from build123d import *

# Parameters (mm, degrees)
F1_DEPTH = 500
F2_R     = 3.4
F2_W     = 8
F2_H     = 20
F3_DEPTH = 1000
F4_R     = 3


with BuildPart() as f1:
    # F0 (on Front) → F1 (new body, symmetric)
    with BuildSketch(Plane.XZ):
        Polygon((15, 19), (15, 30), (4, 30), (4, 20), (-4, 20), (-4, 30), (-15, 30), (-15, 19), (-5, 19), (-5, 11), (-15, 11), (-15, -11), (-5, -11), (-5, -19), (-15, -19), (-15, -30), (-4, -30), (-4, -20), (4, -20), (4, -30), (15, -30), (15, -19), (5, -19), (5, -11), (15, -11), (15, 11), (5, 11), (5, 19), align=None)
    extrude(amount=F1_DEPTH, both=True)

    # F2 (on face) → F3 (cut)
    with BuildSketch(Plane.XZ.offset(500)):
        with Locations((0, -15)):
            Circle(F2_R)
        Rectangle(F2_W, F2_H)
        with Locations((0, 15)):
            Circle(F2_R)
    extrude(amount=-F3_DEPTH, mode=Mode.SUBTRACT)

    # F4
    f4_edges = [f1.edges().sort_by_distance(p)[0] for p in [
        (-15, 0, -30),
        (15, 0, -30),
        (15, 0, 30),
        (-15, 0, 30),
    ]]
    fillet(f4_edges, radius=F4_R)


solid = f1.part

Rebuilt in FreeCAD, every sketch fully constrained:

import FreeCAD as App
import Part
import Sketcher
from FreeCAD import Vector
Q = App.Units.Quantity


def edges_at(feature, points):
    """Names of the edges that pass closest to the given points."""
    edges = feature.Shape.Edges
    near = lambda p: min(range(len(edges)), key=lambda i: edges[i].distToShape(Part.Vertex(*p))[0])
    return sorted({f"Edge{near(p) + 1}" for p in points})

doc = App.newDocument("Part")
body = doc.addObject("PartDesign::Body", "Body")

sketch1 = doc.addObject("Sketcher::SketchObject", "Sketch")
body.addObject(sketch1)
sketch1.AttachmentSupport = (doc.XZ_Plane, [""])
sketch1.MapMode = "FlatFace"
sketch1.addGeometry(Part.LineSegment(Vector(15, 19, 0), Vector(15, 30, 0)), False)
sketch1.addGeometry(Part.LineSegment(Vector(15, 30, 0), Vector(4, 30, 0)), False)
sketch1.addGeometry(Part.LineSegment(Vector(4, 30, 0), Vector(4, 20, 0)), False)
sketch1.addGeometry(Part.LineSegment(Vector(4, 20, 0), Vector(-4, 20, 0)), False)
sketch1.addGeometry(Part.LineSegment(Vector(-4, 20, 0), Vector(-4, 30, 0)), False)
sketch1.addGeometry(Part.LineSegment(Vector(-4, 30, 0), Vector(-15, 30, 0)), False)
sketch1.addGeometry(Part.LineSegment(Vector(-15, 30, 0), Vector(-15, 19, 0)), False)
sketch1.addGeometry(Part.LineSegment(Vector(-15, 19, 0), Vector(-5, 19, 0)), False)
sketch1.addGeometry(Part.LineSegment(Vector(-5, 19, 0), Vector(-5, 11, 0)), False)
sketch1.addGeometry(Part.LineSegment(Vector(-5, 11, 0), Vector(-15, 11, 0)), False)
sketch1.addGeometry(Part.LineSegment(Vector(-15, 11, 0), Vector(-15, -11, 0)), False)
sketch1.addGeometry(Part.LineSegment(Vector(-15, -11, 0), Vector(-5, -11, 0)), False)
sketch1.addGeometry(Part.LineSegment(Vector(-5, -11, 0), Vector(-5, -19, 0)), False)
sketch1.addGeometry(Part.LineSegment(Vector(-5, -19, 0), Vector(-15, -19, 0)), False)
sketch1.addGeometry(Part.LineSegment(Vector(-15, -19, 0), Vector(-15, -30, 0)), False)
sketch1.addGeometry(Part.LineSegment(Vector(-15, -30, 0), Vector(-4, -30, 0)), False)
sketch1.addGeometry(Part.LineSegment(Vector(-4, -30, 0), Vector(-4, -20, 0)), False)
sketch1.addGeometry(Part.LineSegment(Vector(-4, -20, 0), Vector(4, -20, 0)), False)
sketch1.addGeometry(Part.LineSegment(Vector(4, -20, 0), Vector(4, -30, 0)), False)
sketch1.addGeometry(Part.LineSegment(Vector(4, -30, 0), Vector(15, -30, 0)), False)
sketch1.addGeometry(Part.LineSegment(Vector(15, -30, 0), Vector(15, -19, 0)), False)
sketch1.addGeometry(Part.LineSegment(Vector(15, -19, 0), Vector(5, -19, 0)), False)
sketch1.addGeometry(Part.LineSegment(Vector(5, -19, 0), Vector(5, -11, 0)), False)
sketch1.addGeometry(Part.LineSegment(Vector(5, -11, 0), Vector(15, -11, 0)), False)
sketch1.addGeometry(Part.LineSegment(Vector(15, -11, 0), Vector(15, 11, 0)), False)
sketch1.addGeometry(Part.LineSegment(Vector(15, 11, 0), Vector(5, 11, 0)), False)
sketch1.addGeometry(Part.LineSegment(Vector(5, 11, 0), Vector(5, 19, 0)), False)
sketch1.addGeometry(Part.LineSegment(Vector(5, 19, 0), Vector(15, 19, 0)), False)
sketch1.addConstraint(Sketcher.Constraint("Coincident", 0, 2, 1, 1))
sketch1.addConstraint(Sketcher.Constraint("Coincident", 1, 2, 2, 1))
sketch1.addConstraint(Sketcher.Constraint("Coincident", 2, 2, 3, 1))
sketch1.addConstraint(Sketcher.Constraint("Coincident", 3, 2, 4, 1))
sketch1.addConstraint(Sketcher.Constraint("Coincident", 4, 2, 5, 1))
sketch1.addConstraint(Sketcher.Constraint("Coincident", 5, 2, 6, 1))
sketch1.addConstraint(Sketcher.Constraint("Coincident", 6, 2, 7, 1))
sketch1.addConstraint(Sketcher.Constraint("Coincident", 7, 2, 8, 1))
sketch1.addConstraint(Sketcher.Constraint("Coincident", 8, 2, 9, 1))
sketch1.addConstraint(Sketcher.Constraint("Coincident", 9, 2, 10, 1))
sketch1.addConstraint(Sketcher.Constraint("Coincident", 10, 2, 11, 1))
sketch1.addConstraint(Sketcher.Constraint("Coincident", 11, 2, 12, 1))
sketch1.addConstraint(Sketcher.Constraint("Coincident", 12, 2, 13, 1))
sketch1.addConstraint(Sketcher.Constraint("Coincident", 13, 2, 14, 1))
sketch1.addConstraint(Sketcher.Constraint("Coincident", 14, 2, 15, 1))
sketch1.addConstraint(Sketcher.Constraint("Coincident", 15, 2, 16, 1))
sketch1.addConstraint(Sketcher.Constraint("Coincident", 16, 2, 17, 1))
sketch1.addConstraint(Sketcher.Constraint("Coincident", 17, 2, 18, 1))
sketch1.addConstraint(Sketcher.Constraint("Coincident", 18, 2, 19, 1))
sketch1.addConstraint(Sketcher.Constraint("Coincident", 19, 2, 20, 1))
sketch1.addConstraint(Sketcher.Constraint("Coincident", 20, 2, 21, 1))
sketch1.addConstraint(Sketcher.Constraint("Coincident", 21, 2, 22, 1))
sketch1.addConstraint(Sketcher.Constraint("Coincident", 22, 2, 23, 1))
sketch1.addConstraint(Sketcher.Constraint("Coincident", 23, 2, 24, 1))
sketch1.addConstraint(Sketcher.Constraint("Coincident", 24, 2, 25, 1))
sketch1.addConstraint(Sketcher.Constraint("Coincident", 25, 2, 26, 1))
sketch1.addConstraint(Sketcher.Constraint("Coincident", 26, 2, 27, 1))
sketch1.addConstraint(Sketcher.Constraint("Coincident", 27, 2, 0, 1))
sketch1.addConstraint(Sketcher.Constraint("Vertical", 0))
sketch1.addConstraint(Sketcher.Constraint("Horizontal", 1))
sketch1.addConstraint(Sketcher.Constraint("Vertical", 2))
sketch1.addConstraint(Sketcher.Constraint("Horizontal", 3))
sketch1.addConstraint(Sketcher.Constraint("Vertical", 4))
sketch1.addConstraint(Sketcher.Constraint("Horizontal", 5))
sketch1.addConstraint(Sketcher.Constraint("Vertical", 6))
sketch1.addConstraint(Sketcher.Constraint("Horizontal", 7))
sketch1.addConstraint(Sketcher.Constraint("Vertical", 8))
sketch1.addConstraint(Sketcher.Constraint("Horizontal", 9))
sketch1.addConstraint(Sketcher.Constraint("Vertical", 10))
sketch1.addConstraint(Sketcher.Constraint("Horizontal", 11))
sketch1.addConstraint(Sketcher.Constraint("Vertical", 12))
sketch1.addConstraint(Sketcher.Constraint("Horizontal", 13))
sketch1.addConstraint(Sketcher.Constraint("Vertical", 14))
sketch1.addConstraint(Sketcher.Constraint("Horizontal", 15))
sketch1.addConstraint(Sketcher.Constraint("Vertical", 16))
sketch1.addConstraint(Sketcher.Constraint("Horizontal", 17))
sketch1.addConstraint(Sketcher.Constraint("Vertical", 18))
sketch1.addConstraint(Sketcher.Constraint("Horizontal", 19))
sketch1.addConstraint(Sketcher.Constraint("Vertical", 20))
sketch1.addConstraint(Sketcher.Constraint("Horizontal", 21))
sketch1.addConstraint(Sketcher.Constraint("Vertical", 22))
sketch1.addConstraint(Sketcher.Constraint("Horizontal", 23))
sketch1.addConstraint(Sketcher.Constraint("Vertical", 24))
sketch1.addConstraint(Sketcher.Constraint("Horizontal", 25))
sketch1.addConstraint(Sketcher.Constraint("Vertical", 26))
sketch1.addConstraint(Sketcher.Constraint("Horizontal", 27))
sketch1.addConstraint(Sketcher.Constraint("Symmetric", 0, 2, 14, 2, -1, 1))
sketch1.addConstraint(Sketcher.Constraint("Symmetric", 2, 2, 16, 2, -1, 1))
sketch1.addConstraint(Sketcher.Constraint("Symmetric", 4, 2, 18, 2, -1, 1))
sketch1.addConstraint(Sketcher.Constraint("Symmetric", 6, 2, 20, 2, -1, 1))
sketch1.addConstraint(Sketcher.Constraint("Symmetric", 8, 2, 22, 2, -1, 1))
sketch1.addConstraint(Sketcher.Constraint("Symmetric", 10, 2, 24, 2, -1, 1))
sketch1.addConstraint(Sketcher.Constraint("Symmetric", 12, 2, 26, 2, -1, 1))
sketch1.addConstraint(Sketcher.Constraint("Symmetric", 1, 2, 4, 2, -2))
sketch1.addConstraint(Sketcher.Constraint("Symmetric", 13, 2, 20, 2, -2))
sketch1.addConstraint(Sketcher.Constraint("Symmetric", 11, 2, 22, 2, -2))
sketch1.addConstraint(Sketcher.Constraint("Vertical", 6, 2, 9, 2))
sketch1.addConstraint(Sketcher.Constraint("Equal", 19, 0))
sketch1.addConstraint(Sketcher.Constraint("Equal", 27, 2))
sketch1.addConstraint(Sketcher.Constraint("Equal", 17, 8))
sketch1.addConstraint(Sketcher.Constraint("DistanceX", 1, 2, 1, 1, Q("11 mm")))
sketch1.addConstraint(Sketcher.Constraint("DistanceX", 3, 2, 3, 1, Q("8 mm")))
sketch1.addConstraint(Sketcher.Constraint("DistanceX", 7, 1, 7, 2, Q("10 mm")))
sketch1.addConstraint(Sketcher.Constraint("DistanceY", 10, 2, 10, 1, Q("22 mm")))
pad1 = doc.addObject("PartDesign::Pad", "Pad")
body.addObject(pad1)
pad1.Profile = sketch1
pad1.Length = 1000
pad1.Midplane = True

sketch2 = doc.addObject("Sketcher::SketchObject", "Sketch001")
body.addObject(sketch2)
sketch2.AttachmentSupport = (doc.XZ_Plane, [""])
sketch2.MapMode = "FlatFace"
sketch2.AttachmentOffset = App.Placement(Vector(0, 0, 500), App.Rotation())
sketch2.addGeometry(Part.Circle(Vector(0, -15, 0), Vector(0, 0, 1), 3.4), False)
sketch2.addGeometry(Part.LineSegment(Vector(-4, 10, 0), Vector(-4, -10, 0)), False)
sketch2.addGeometry(Part.LineSegment(Vector(-4, -10, 0), Vector(4, -10, 0)), False)
sketch2.addGeometry(Part.LineSegment(Vector(4, -10, 0), Vector(4, 10, 0)), False)
sketch2.addGeometry(Part.LineSegment(Vector(4, 10, 0), Vector(-4, 10, 0)), False)
sketch2.addGeometry(Part.Circle(Vector(0, 15, 0), Vector(0, 0, 1), 3.4), False)
sketch2.addConstraint(Sketcher.Constraint("Coincident", 1, 2, 2, 1))
sketch2.addConstraint(Sketcher.Constraint("Coincident", 2, 2, 3, 1))
sketch2.addConstraint(Sketcher.Constraint("Coincident", 3, 2, 4, 1))
sketch2.addConstraint(Sketcher.Constraint("Coincident", 4, 2, 1, 1))
sketch2.addConstraint(Sketcher.Constraint("Vertical", 1))
sketch2.addConstraint(Sketcher.Constraint("Horizontal", 2))
sketch2.addConstraint(Sketcher.Constraint("Vertical", 3))
sketch2.addConstraint(Sketcher.Constraint("Horizontal", 4))
sketch2.addConstraint(Sketcher.Constraint("Equal", 0, 5))
sketch2.addConstraint(Sketcher.Constraint("Symmetric", 0, 3, 5, 3, -1, 1))
sketch2.addConstraint(Sketcher.Constraint("Symmetric", 1, 2, 3, 2, -1, 1))
sketch2.addConstraint(Sketcher.Constraint("PointOnObject", 0, 3, -2))
sketch2.addConstraint(Sketcher.Constraint("Diameter", 0, Q("6.8 mm")))
sketch2.addConstraint(Sketcher.Constraint("DistanceX", 2, 1, 2, 2, Q("8 mm")))
sketch2.addConstraint(Sketcher.Constraint("DistanceY", 1, 2, 1, 1, Q("20 mm")))
sketch2.addConstraint(Sketcher.Constraint("DistanceY", 0, 3, -1, 1, Q("15 mm")))
pocket1 = doc.addObject("PartDesign::Pocket", "Pocket")
body.addObject(pocket1)
pocket1.Profile = sketch2
pocket1.Length = 1000
doc.recompute()

fillet = doc.addObject("PartDesign::Fillet", "Fillet")
body.addObject(fillet)
fillet.Base = (pocket1, edges_at(pocket1, [
    (-15, 0, -30),
    (15, 0, -30),
    (15, 0, 30),
    (-15, 0, 30),
]))
fillet.Radius = 3

doc.recompute()
